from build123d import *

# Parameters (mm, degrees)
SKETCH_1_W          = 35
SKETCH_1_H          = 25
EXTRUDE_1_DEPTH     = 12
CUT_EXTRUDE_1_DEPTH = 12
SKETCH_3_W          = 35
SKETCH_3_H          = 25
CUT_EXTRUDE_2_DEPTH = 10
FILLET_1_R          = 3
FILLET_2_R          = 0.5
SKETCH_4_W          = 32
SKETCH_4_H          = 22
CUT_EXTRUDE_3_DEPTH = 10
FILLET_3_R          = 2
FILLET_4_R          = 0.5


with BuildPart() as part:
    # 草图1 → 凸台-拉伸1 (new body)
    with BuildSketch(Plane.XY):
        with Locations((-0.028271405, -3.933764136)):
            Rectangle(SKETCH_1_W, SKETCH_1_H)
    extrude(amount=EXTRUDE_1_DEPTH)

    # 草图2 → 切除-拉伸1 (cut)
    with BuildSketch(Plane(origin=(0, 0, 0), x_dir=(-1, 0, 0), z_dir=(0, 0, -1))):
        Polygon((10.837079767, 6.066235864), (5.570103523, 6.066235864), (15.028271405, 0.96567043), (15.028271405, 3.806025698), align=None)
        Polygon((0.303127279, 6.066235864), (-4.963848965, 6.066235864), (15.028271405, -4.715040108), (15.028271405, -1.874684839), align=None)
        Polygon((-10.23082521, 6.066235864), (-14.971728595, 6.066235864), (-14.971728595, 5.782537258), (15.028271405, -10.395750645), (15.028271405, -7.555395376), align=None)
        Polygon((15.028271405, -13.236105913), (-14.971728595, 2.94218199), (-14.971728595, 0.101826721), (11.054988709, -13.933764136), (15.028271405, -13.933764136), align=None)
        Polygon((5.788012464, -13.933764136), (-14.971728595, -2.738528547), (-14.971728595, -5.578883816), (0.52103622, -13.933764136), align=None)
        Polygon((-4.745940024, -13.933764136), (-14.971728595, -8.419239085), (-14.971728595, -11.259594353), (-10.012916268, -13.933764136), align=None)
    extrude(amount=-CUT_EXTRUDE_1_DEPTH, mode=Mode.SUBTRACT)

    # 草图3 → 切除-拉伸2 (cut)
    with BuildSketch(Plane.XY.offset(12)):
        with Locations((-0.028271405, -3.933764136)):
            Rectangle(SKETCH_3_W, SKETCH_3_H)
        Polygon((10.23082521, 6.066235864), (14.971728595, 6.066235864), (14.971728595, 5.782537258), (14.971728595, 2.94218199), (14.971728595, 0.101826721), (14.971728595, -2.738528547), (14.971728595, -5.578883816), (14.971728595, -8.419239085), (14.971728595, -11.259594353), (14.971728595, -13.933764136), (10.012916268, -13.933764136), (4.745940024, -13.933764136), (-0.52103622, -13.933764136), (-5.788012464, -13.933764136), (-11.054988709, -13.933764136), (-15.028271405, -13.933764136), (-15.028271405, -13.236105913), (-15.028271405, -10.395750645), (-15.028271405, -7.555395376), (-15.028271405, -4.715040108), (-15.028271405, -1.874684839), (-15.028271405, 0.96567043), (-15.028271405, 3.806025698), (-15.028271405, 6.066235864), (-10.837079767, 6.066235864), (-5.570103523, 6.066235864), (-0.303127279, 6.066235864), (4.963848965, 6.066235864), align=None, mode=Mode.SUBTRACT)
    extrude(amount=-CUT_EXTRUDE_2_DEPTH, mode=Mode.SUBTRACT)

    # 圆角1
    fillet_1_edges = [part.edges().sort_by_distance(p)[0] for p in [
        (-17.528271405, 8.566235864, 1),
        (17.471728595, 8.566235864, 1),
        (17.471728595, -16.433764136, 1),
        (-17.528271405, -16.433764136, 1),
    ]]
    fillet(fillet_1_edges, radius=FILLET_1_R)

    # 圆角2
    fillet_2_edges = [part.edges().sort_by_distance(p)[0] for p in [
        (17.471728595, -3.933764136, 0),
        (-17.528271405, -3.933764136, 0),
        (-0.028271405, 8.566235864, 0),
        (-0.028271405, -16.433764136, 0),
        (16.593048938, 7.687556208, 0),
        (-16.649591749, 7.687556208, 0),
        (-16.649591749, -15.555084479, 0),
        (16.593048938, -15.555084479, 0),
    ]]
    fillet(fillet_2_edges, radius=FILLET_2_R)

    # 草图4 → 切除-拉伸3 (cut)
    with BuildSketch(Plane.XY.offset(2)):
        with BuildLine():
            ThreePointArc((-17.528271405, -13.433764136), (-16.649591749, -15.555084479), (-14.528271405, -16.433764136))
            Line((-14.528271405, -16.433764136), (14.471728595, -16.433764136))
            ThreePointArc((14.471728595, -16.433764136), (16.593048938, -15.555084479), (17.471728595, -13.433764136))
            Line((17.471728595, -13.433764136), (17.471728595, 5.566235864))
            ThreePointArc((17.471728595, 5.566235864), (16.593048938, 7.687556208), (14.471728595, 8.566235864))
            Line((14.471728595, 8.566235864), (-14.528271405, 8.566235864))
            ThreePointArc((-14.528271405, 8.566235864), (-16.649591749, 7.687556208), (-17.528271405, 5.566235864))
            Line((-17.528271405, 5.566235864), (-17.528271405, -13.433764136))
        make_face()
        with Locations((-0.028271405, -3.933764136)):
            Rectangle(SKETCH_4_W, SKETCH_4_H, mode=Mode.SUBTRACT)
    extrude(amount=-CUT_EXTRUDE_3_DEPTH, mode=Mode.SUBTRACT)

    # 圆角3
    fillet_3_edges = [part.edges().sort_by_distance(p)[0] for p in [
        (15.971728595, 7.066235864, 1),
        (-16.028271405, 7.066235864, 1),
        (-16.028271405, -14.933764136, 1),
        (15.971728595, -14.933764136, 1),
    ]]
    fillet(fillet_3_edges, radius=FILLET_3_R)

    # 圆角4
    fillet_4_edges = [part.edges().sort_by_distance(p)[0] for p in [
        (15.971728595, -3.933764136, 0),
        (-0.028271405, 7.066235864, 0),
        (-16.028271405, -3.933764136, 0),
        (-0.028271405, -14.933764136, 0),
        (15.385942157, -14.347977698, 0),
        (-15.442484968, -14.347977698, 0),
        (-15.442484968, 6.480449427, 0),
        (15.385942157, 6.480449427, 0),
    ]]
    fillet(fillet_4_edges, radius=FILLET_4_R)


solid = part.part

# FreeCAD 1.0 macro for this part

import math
import FreeCAD as App
import Part
import Sketcher

V = App.Vector


def edges_at(feature, points):
    """Names of the edges that pass closest to the given points."""
    edges = feature.Shape.Edges
    near = lambda p: min(range(len(edges)), key=lambda i: edges[i].distToShape(Part.Vertex(*p))[0])
    return sorted({f"Edge{near(p) + 1}" for p in points})

doc = App.newDocument("Part")
body = doc.addObject("PartDesign::Body", "Body")

sketch1 = body.newObject("Sketcher::SketchObject", "Sketch")
sketch1.AttachmentSupport = (doc.getObject("XY_Plane"), [""])
sketch1.MapMode = "FlatFace"
sketch1.addGeometry([
    Part.LineSegment(V(-17.528271, 8.566236, 0), V(-17.528271, -16.433764, 0)),
    Part.LineSegment(V(-17.528271, -16.433764, 0), V(17.471729, -16.433764, 0)),
    Part.LineSegment(V(17.471729, -16.433764, 0), V(17.471729, 8.566236, 0)),
    Part.LineSegment(V(17.471729, 8.566236, 0), V(-17.528271, 8.566236, 0)),
], False)
sketch1.addConstraint([
    Sketcher.Constraint("Coincident", 0, 2, 1, 1),
    Sketcher.Constraint("Coincident", 1, 2, 2, 1),
    Sketcher.Constraint("Coincident", 2, 2, 3, 1),
    Sketcher.Constraint("Coincident", 3, 2, 0, 1),
    Sketcher.Constraint("Vertical", 0),
    Sketcher.Constraint("Horizontal", 1),
    Sketcher.Constraint("Vertical", 2),
    Sketcher.Constraint("Horizontal", 3),
    Sketcher.Constraint("DistanceX", 1, 1, 1, 2, 35.0),
    Sketcher.Constraint("DistanceY", 0, 2, 0, 1, 25.0),
    Sketcher.Constraint("DistanceX", 0, 2, -1, 1, 17.528271),
    Sketcher.Constraint("DistanceY", 0, 2, -1, 1, 16.433764),
])
pad1 = body.newObject("PartDesign::Pad", "Pad")
pad1.Profile = sketch1
pad1.Length = 12

sketch2 = body.newObject("Sketcher::SketchObject", "Sketch001")
sketch2.AttachmentSupport = (doc.getObject("XY_Plane"), [""])
sketch2.MapMode = "FlatFace"
sketch2.addGeometry([
    Part.LineSegment(V(-10.83708, 6.066236, 0), V(-5.570104, 6.066236, 0)),
    Part.LineSegment(V(-5.570104, 6.066236, 0), V(-15.028271, 0.96567, 0)),
    Part.LineSegment(V(-15.028271, 0.96567, 0), V(-15.028271, 3.806026, 0)),
    Part.LineSegment(V(-15.028271, 3.806026, 0), V(-10.83708, 6.066236, 0)),
    Part.LineSegment(V(-0.303127, 6.066236, 0), V(4.963849, 6.066236, 0)),
    Part.LineSegment(V(4.963849, 6.066236, 0), V(-15.028271, -4.71504, 0)),
    Part.LineSegment(V(-15.028271, -4.71504, 0), V(-15.028271, -1.874685, 0)),
    Part.LineSegment(V(-15.028271, -1.874685, 0), V(-0.303127, 6.066236, 0)),
    Part.LineSegment(V(10.230825, 6.066236, 0), V(14.971729, 6.066236, 0)),
    Part.LineSegment(V(14.971729, 6.066236, 0), V(14.971729, 5.782537, 0)),
    Part.LineSegment(V(14.971729, 5.782537, 0), V(-15.028271, -10.395751, 0)),
    Part.LineSegment(V(-15.028271, -10.395751, 0), V(-15.028271, -7.555395, 0)),
    Part.LineSegment(V(-15.028271, -7.555395, 0), V(10.230825, 6.066236, 0)),
    Part.LineSegment(V(-15.028271, -13.236106, 0), V(14.971729, 2.942182, 0)),
    Part.LineSegment(V(14.971729, 2.942182, 0), V(14.971729, 0.101827, 0)),
    Part.LineSegment(V(14.971729, 0.101827, 0), V(-11.054989, -13.933764, 0)),
    Part.LineSegment(V(-11.054989, -13.933764, 0), V(-15.028271, -13.933764, 0)),
    Part.LineSegment(V(-15.028271, -13.933764, 0), V(-15.028271, -13.236106, 0)),
    Part.LineSegment(V(-5.788012, -13.933764, 0), V(14.971729, -2.738529, 0)),
    Part.LineSegment(V(14.971729, -2.738529, 0), V(14.971729, -5.578884, 0)),
    Part.LineSegment(V(14.971729, -5.578884, 0), V(-0.521036, -13.933764, 0)),
    Part.LineSegment(V(-0.521036, -13.933764, 0), V(-5.788012, -13.933764, 0)),
    Part.LineSegment(V(4.74594, -13.933764, 0), V(14.971729, -8.419239, 0)),
    Part.LineSegment(V(14.971729, -8.419239, 0), V(14.971729, -11.259594, 0)),
    Part.LineSegment(V(14.971729, -11.259594, 0), V(10.012916, -13.933764, 0)),
    Part.LineSegment(V(10.012916, -13.933764, 0), V(4.74594, -13.933764, 0)),
], False)
sketch2.addConstraint([
    Sketcher.Constraint("Coincident", 0, 2, 1, 1),
    Sketcher.Constraint("Coincident", 1, 2, 2, 1),
    Sketcher.Constraint("Coincident", 2, 2, 3, 1),
    Sketcher.Constraint("Coincident", 3, 2, 0, 1),
    Sketcher.Constraint("Coincident", 4, 2, 5, 1),
    Sketcher.Constraint("Coincident", 5, 2, 6, 1),
    Sketcher.Constraint("Coincident", 6, 2, 7, 1),
    Sketcher.Constraint("Coincident", 7, 2, 4, 1),
    Sketcher.Constraint("Coincident", 8, 2, 9, 1),
    Sketcher.Constraint("Coincident", 9, 2, 10, 1),
    Sketcher.Constraint("Coincident", 10, 2, 11, 1),
    Sketcher.Constraint("Coincident", 11, 2, 12, 1),
    Sketcher.Constraint("Coincident", 12, 2, 8, 1),
    Sketcher.Constraint("Coincident", 13, 2, 14, 1),
    Sketcher.Constraint("Coincident", 14, 2, 15, 1),
    Sketcher.Constraint("Coincident", 15, 2, 16, 1),
    Sketcher.Constraint("Coincident", 16, 2, 17, 1),
    Sketcher.Constraint("Coincident", 17, 2, 13, 1),
    Sketcher.Constraint("Coincident", 18, 2, 19, 1),
    Sketcher.Constraint("Coincident", 19, 2, 20, 1),
    Sketcher.Constraint("Coincident", 20, 2, 21, 1),
    Sketcher.Constraint("Coincident", 21, 2, 18, 1),
    Sketcher.Constraint("Coincident", 22, 2, 23, 1),
    Sketcher.Constraint("Coincident", 23, 2, 24, 1),
    Sketcher.Constraint("Coincident", 24, 2, 25, 1),
    Sketcher.Constraint("Coincident", 25, 2, 22, 1),
    Sketcher.Constraint("Horizontal", 0),
    Sketcher.Constraint("Vertical", 2),
    Sketcher.Constraint("Horizontal", 4),
    Sketcher.Constraint("Vertical", 6),
    Sketcher.Constraint("Horizontal", 8),
    Sketcher.Constraint("Vertical", 9),
    Sketcher.Constraint("Vertical", 11),
    Sketcher.Constraint("Vertical", 14),
    Sketcher.Constraint("Horizontal", 16),
    Sketcher.Constraint("Vertical", 17),
    Sketcher.Constraint("Vertical", 19),
    Sketcher.Constraint("Horizontal", 21),
    Sketcher.Constraint("Vertical", 23),
    Sketcher.Constraint("Horizontal", 25),
    Sketcher.Constraint("Parallel", 1, 3),
    Sketcher.Constraint("Parallel", 3, 5),
    Sketcher.Constraint("Parallel", 5, 7),
    Sketcher.Constraint("Parallel", 7, 10),
    Sketcher.Constraint("Parallel", 10, 12),
    Sketcher.Constraint("Parallel", 12, 13),
    Sketcher.Constraint("Parallel", 13, 15),
    Sketcher.Constraint("Parallel", 15, 18),
    Sketcher.Constraint("Parallel", 18, 20),
    Sketcher.Constraint("Parallel", 20, 22),
    Sketcher.Constraint("Parallel", 22, 24),
    Sketcher.Constraint("Horizontal", 3, 2, 4, 2),
    Sketcher.Constraint("Horizontal", 7, 2, 8, 2),
    Sketcher.Constraint("Horizontal", 16, 2, 20, 2),
    Sketcher.Constraint("Horizontal", 21, 2, 24, 2),
    Sketcher.Constraint("Vertical", 2, 2, 5, 2),
    Sketcher.Constraint("Vertical", 6, 2, 10, 2),
    Sketcher.Constraint("Vertical", 9, 2, 13, 2),
    Sketcher.Constraint("Vertical", 11, 2, 16, 2),
    Sketcher.Constraint("Vertical", 14, 2, 18, 2),
    Sketcher.Constraint("Vertical", 19, 2, 22, 2),
    Sketcher.Constraint("Equal", 0, 4),
    Sketcher.Constraint("Equal", 4, 21),
    Sketcher.Constraint("Equal", 21, 25),
    Sketcher.Constraint("Equal", 6, 11),
    Sketcher.Constraint("Equal", 11, 14),
    Sketcher.Constraint("DistanceX", 2, 2, 8, 2, 30.0),
    Sketcher.Constraint("DistanceY", 9, 2, 9, 1, 0.283699),
    Sketcher.Constraint("DistanceY", 17, 1, 17, 2, 0.697658),
    Sketcher.Constraint("Distance", 3, 4.761789),
    Sketcher.Constraint("Distance", 5, 22.71389),
    Sketcher.Constraint("Distance", 15, 29.570049),
    Sketcher.Constraint("Distance", 22, 11.617949),
    Sketcher.Constraint("DistanceX", 0, 1, 0, 2, 5.266976),
    Sketcher.Constraint("DistanceX", 1, 2, -1, 1, 15.028271),
    Sketcher.Constraint("DistanceY", -1, 1, 1, 2, 0.96567),
    Sketcher.Constraint("DistanceY", -1, 1, 13, 2, 2.942182),
    Sketcher.Constraint("DistanceY", 18, 2, -1, 1, 2.738529),
])
pocket1 = body.newObject("PartDesign::Pocket", "Pocket")
pocket1.Profile = sketch2
pocket1.Length = 12
pocket1.Reversed = True

sketch3 = body.newObject("Sketcher::SketchObject", "Sketch002")
sketch3.AttachmentSupport = (doc.getObject("XY_Plane"), [""])
sketch3.MapMode = "FlatFace"
sketch3.AttachmentOffset = App.Placement(V(0, 0, 12), App.Rotation())
sketch3.addGeometry([
    Part.LineSegment(V(-17.528271, 8.566236, 0), V(-17.528271, -16.433764, 0)),
    Part.LineSegment(V(-17.528271, -16.433764, 0), V(17.471729, -16.433764, 0)),
    Part.LineSegment(V(17.471729, -16.433764, 0), V(17.471729, 8.566236, 0)),
    Part.LineSegment(V(17.471729, 8.566236, 0), V(-17.528271, 8.566236, 0)),
    Part.LineSegment(V(-15.028271, 6.066236, 0), V(14.971729, 6.066236, 0)),
    Part.LineSegment(V(14.971729, 6.066236, 0), V(14.971729, -13.933764, 0)),
    Part.LineSegment(V(14.971729, -13.933764, 0), V(-15.028271, -13.933764, 0)),
    Part.LineSegment(V(-15.028271, -13.933764, 0), V(-15.028271, 6.066236, 0)),
], False)
sketch3.addConstraint([
    Sketcher.Constraint("Coincident", 0, 2, 1, 1),
    Sketcher.Constraint("Coincident", 1, 2, 2, 1),
    Sketcher.Constraint("Coincident", 2, 2, 3, 1),
    Sketcher.Constraint("Coincident", 3, 2, 0, 1),
    Sketcher.Constraint("Coincident", 4, 2, 5, 1),
    Sketcher.Constraint("Coincident", 5, 2, 6, 1),
    Sketcher.Constraint("Coincident", 6, 2, 7, 1),
    Sketcher.Constraint("Coincident", 7, 2, 4, 1),
    Sketcher.Constraint("Vertical", 0),
    Sketcher.Constraint("Horizontal", 1),
    Sketcher.Constraint("Vertical", 2),
    Sketcher.Constraint("Horizontal", 3),
    Sketcher.Constraint("Horizontal", 4),
    Sketcher.Constraint("Vertical", 5),
    Sketcher.Constraint("Horizontal", 6),
    Sketcher.Constraint("Vertical", 7),
    Sketcher.Constraint("DistanceX", 1, 1, 1, 2, 35.0),
    Sketcher.Constraint("DistanceX", 4, 1, 4, 2, 30.0),
    Sketcher.Constraint("DistanceY", 0, 2, 0, 1, 25.0),
    Sketcher.Constraint("DistanceY", 5, 2, 5, 1, 20.0),
    Sketcher.Constraint("DistanceX", 4, 2, 2, 2, 2.5),
    Sketcher.Constraint("DistanceY", 4, 2, 2, 2, 2.5),
    Sketcher.Constraint("DistanceX", 0, 2, -1, 1, 17.528271),
    Sketcher.Constraint("DistanceY", 0, 2, -1, 1, 16.433764),
])
pocket2 = body.newObject("PartDesign::Pocket", "Pocket001")
pocket2.Profile = sketch3
pocket2.Length = 10
doc.recompute()

fillet = body.newObject("PartDesign::Fillet", "Fillet")
fillet.Base = (pocket2, edges_at(pocket2, [
    (-17.528, 8.566, 1),
    (17.472, 8.566, 1),
    (17.472, -16.434, 1),
    (-17.528, -16.434, 1),
]))
fillet.Radius = 3
doc.recompute()

fillet2 = body.newObject("PartDesign::Fillet", "Fillet001")
fillet2.Base = (fillet, edges_at(fillet, [
    (17.472, -3.934, 0),
    (-17.528, -3.934, 0),
    (-0.028, 8.566, 0),
    (-0.028, -16.434, 0),
    (16.593, 7.688, 0),
    (-16.65, 7.688, 0),
    (-16.65, -15.555, 0),
    (16.593, -15.555, 0),
]))
fillet2.Radius = 0.5

sketch4 = body.newObject("Sketcher::SketchObject", "Sketch003")
sketch4.AttachmentSupport = (doc.getObject("XY_Plane"), [""])
sketch4.MapMode = "FlatFace"
sketch4.AttachmentOffset = App.Placement(V(0, 0, 2), App.Rotation())
sketch4.addGeometry([
    Part.ArcOfCircle(Part.Circle(V(-14.528271, -13.433764, 0), V(0, 0, 1), 3), math.radians(180), math.radians(270)),
    Part.LineSegment(V(-14.528271, -16.433764, 0), V(14.471729, -16.433764, 0)),
    Part.ArcOfCircle(Part.Circle(V(14.471729, -13.433764, 0), V(0, 0, 1), 3), math.radians(-90), math.radians(0)),
    Part.LineSegment(V(17.471729, -13.433764, 0), V(17.471729, 5.566236, 0)),
    Part.ArcOfCircle(Part.Circle(V(14.471729, 5.566236, 0), V(0, 0, 1), 3), math.radians(0), math.radians(90)),
    Part.LineSegment(V(14.471729, 8.566236, 0), V(-14.528271, 8.566236, 0)),
    Part.ArcOfCircle(Part.Circle(V(-14.528271, 5.566236, 0), V(0, 0, 1), 3), math.radians(90), math.radians(180)),
    Part.LineSegment(V(-17.528271, 5.566236, 0), V(-17.528271, -13.433764, 0)),
    Part.LineSegment(V(15.971729, -14.933764, 0), V(-16.028271, -14.933764, 0)),
    Part.LineSegment(V(-16.028271, -14.933764, 0), V(-16.028271, 7.066236, 0)),
    Part.LineSegment(V(-16.028271, 7.066236, 0), V(15.971729, 7.066236, 0)),
    Part.LineSegment(V(15.971729, 7.066236, 0), V(15.971729, -14.933764, 0)),
], False)
sketch4.addConstraint([
    Sketcher.Constraint("Tangent", 0, 2, 1, 1),
    Sketcher.Constraint("Tangent", 1, 2, 2, 1),
    Sketcher.Constraint("Tangent", 2, 2, 3, 1),
    Sketcher.Constraint("Tangent", 3, 2, 4, 1),
    Sketcher.Constraint("Tangent", 4, 2, 5, 1),
    Sketcher.Constraint("Tangent", 5, 2, 6, 1),
    Sketcher.Constraint("Tangent", 6, 2, 7, 1),
    Sketcher.Constraint("Tangent", 7, 2, 0, 1),
    Sketcher.Constraint("Coincident", 8, 2, 9, 1),
    Sketcher.Constraint("Coincident", 9, 2, 10, 1),
    Sketcher.Constraint("Coincident", 10, 2, 11, 1),
    Sketcher.Constraint("Coincident", 11, 2, 8, 1),
    Sketcher.Constraint("Horizontal", 1),
    Sketcher.Constraint("Vertical", 3),
    Sketcher.Constraint("Horizontal", 5),
    Sketcher.Constraint("Vertical", 7),
    Sketcher.Constraint("Horizontal", 8),
    Sketcher.Constraint("Vertical", 9),
    Sketcher.Constraint("Horizontal", 10),
    Sketcher.Constraint("Vertical", 11),
    Sketcher.Constraint("Equal", 0, 2),
    Sketcher.Constraint("Equal", 2, 4),
    Sketcher.Constraint("Equal", 4, 6),
    Sketcher.Constraint("Radius", 0, 3.0),
    Sketcher.Constraint("DistanceX", 1, 1, 1, 2, 29.0),
    Sketcher.Constraint("DistanceX", 8, 2, 8, 1, 32.0),
    Sketcher.Constraint("DistanceY", 3, 1, 3, 2, 19.0),
    Sketcher.Constraint("DistanceY", 9, 1, 9, 2, 22.0),
    Sketcher.Constraint("DistanceX", 7, 2, 8, 2, 1.5),
    Sketcher.Constraint("DistanceY", 8, 2, 7, 2, 1.5),
    Sketcher.Constraint("DistanceX", 0, 3, -1, 1, 14.528271),
    Sketcher.Constraint("DistanceY", 0, 3, -1, 1, 13.433764),
])
pocket3 = body.newObject("PartDesign::Pocket", "Pocket002")
pocket3.Profile = sketch4
pocket3.Length = 10
doc.recompute()

fillet3 = body.newObject("PartDesign::Fillet", "Fillet002")
fillet3.Base = (pocket3, edges_at(pocket3, [
    (15.972, 7.066, 1),
    (-16.028, 7.066, 1),
    (-16.028, -14.934, 1),
    (15.972, -14.934, 1),
]))
fillet3.Radius = 2
doc.recompute()

fillet4 = body.newObject("PartDesign::Fillet", "Fillet003")
fillet4.Base = (fillet3, edges_at(fillet3, [
    (15.972, -3.934, 0),
    (-0.028, 7.066, 0),
    (-16.028, -3.934, 0),
    (-0.028, -14.934, 0),
    (15.386, -14.348, 0),
    (-15.442, -14.348, 0),
    (-15.442, 6.48, 0),
    (15.386, 6.48, 0),
]))
fillet4.Radius = 0.5

doc.recompute()
